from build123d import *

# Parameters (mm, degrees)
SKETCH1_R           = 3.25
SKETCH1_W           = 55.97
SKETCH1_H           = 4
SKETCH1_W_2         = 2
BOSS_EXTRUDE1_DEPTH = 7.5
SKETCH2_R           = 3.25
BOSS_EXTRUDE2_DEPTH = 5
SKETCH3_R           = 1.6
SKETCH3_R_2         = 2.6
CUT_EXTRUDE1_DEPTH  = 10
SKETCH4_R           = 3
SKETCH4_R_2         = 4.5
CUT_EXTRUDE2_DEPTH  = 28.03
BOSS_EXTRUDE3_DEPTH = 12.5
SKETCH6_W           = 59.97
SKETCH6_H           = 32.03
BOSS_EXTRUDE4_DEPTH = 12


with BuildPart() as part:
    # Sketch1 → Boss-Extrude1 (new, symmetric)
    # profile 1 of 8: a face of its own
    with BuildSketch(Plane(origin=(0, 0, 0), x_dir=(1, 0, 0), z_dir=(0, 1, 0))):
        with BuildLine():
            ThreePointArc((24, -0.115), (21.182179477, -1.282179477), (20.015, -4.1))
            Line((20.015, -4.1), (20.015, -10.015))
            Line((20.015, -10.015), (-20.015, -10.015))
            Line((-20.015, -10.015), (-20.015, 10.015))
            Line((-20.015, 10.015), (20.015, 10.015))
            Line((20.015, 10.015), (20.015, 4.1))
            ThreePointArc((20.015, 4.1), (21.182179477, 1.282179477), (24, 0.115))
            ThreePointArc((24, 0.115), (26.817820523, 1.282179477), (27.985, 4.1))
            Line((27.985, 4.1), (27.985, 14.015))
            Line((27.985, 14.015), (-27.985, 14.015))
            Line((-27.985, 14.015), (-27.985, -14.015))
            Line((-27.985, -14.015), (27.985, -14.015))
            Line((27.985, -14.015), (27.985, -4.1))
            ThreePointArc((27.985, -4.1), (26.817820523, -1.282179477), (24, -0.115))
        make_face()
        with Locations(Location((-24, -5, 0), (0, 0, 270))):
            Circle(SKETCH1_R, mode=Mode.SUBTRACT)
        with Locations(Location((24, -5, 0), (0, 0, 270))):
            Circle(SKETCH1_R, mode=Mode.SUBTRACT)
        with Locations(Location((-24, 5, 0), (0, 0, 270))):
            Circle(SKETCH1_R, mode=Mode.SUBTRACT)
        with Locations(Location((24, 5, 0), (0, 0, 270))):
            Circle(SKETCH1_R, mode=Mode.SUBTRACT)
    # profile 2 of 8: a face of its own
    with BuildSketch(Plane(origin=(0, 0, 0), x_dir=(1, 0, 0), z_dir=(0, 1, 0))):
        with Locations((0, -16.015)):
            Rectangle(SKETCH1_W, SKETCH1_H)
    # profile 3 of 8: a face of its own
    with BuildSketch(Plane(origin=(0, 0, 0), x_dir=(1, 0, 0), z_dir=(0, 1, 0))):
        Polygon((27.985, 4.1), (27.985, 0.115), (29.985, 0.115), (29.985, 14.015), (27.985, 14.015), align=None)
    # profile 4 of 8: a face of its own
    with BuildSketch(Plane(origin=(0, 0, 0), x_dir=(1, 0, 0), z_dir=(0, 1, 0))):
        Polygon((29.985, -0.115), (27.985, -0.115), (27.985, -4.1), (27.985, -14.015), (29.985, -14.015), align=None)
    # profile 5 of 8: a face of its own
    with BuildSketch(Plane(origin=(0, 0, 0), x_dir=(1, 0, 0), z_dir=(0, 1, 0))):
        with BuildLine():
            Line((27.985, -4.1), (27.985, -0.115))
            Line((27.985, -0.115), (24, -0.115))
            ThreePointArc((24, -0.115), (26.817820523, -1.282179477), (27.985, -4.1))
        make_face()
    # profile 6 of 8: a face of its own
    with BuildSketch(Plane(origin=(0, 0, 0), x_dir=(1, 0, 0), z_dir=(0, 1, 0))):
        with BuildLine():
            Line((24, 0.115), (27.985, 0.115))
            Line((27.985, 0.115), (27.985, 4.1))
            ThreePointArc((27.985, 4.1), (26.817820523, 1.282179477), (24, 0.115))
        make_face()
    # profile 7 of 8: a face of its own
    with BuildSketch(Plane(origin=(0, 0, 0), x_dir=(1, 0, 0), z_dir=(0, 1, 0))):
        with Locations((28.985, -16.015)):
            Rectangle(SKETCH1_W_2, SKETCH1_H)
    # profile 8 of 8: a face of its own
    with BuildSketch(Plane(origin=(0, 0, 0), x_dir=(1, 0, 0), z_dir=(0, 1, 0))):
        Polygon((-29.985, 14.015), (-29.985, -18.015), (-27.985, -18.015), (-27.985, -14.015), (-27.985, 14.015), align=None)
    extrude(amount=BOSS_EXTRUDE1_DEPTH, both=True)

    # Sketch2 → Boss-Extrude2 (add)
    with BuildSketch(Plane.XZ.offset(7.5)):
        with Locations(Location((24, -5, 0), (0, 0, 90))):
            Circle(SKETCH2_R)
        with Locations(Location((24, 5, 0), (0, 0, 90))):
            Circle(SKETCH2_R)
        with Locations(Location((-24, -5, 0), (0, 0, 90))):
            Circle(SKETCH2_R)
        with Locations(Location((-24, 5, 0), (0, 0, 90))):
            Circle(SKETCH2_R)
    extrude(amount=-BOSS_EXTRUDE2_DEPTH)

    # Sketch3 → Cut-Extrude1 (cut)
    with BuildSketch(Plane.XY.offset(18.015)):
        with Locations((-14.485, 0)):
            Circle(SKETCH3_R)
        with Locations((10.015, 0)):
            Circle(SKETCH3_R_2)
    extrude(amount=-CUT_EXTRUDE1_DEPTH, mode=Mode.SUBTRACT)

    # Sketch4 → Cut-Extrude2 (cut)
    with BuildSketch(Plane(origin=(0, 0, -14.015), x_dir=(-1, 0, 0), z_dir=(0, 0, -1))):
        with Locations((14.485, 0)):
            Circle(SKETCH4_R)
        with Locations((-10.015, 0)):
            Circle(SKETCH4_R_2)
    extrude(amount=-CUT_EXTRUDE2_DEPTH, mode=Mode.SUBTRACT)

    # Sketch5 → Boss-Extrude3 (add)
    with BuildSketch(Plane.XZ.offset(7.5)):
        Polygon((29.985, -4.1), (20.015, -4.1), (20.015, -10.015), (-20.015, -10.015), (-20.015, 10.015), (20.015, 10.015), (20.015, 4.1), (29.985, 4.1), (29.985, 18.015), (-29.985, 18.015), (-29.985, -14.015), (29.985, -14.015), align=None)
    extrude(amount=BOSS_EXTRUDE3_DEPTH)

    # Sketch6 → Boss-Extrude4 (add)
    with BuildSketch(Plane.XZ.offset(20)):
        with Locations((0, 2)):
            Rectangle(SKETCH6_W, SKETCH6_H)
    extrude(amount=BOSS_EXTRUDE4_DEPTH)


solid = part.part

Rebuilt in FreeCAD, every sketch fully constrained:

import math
import FreeCAD as App
import Part
import Sketcher

V = App.Vector
Q = App.Units.Quantity

doc = App.newDocument("Part")
body = doc.addObject("PartDesign::Body", "Body")

sketch1 = doc.addObject("Sketcher::SketchObject", "Sketch")
body.addObject(sketch1)
sketch1.AttachmentSupport = (doc.XZ_Plane, [""])
sketch1.MapMode = "FlatFace"
sketch1.addGeometry(Part.ArcOfCircle(Part.Circle(V(24, 4.1, 0), V(0, 0, 1), 4), math.radians(180), math.radians(270)), False)
sketch1.addGeometry(Part.LineSegment(V(20, 4.1, 0), V(20, 10, 0)), False)
sketch1.addGeometry(Part.LineSegment(V(20, 10, 0), V(-20, 10, 0)), False)
sketch1.addGeometry(Part.LineSegment(V(-20, 10, 0), V(-20, -10, 0)), False)
sketch1.addGeometry(Part.LineSegment(V(-20, -10, 0), V(20, -10, 0)), False)
sketch1.addGeometry(Part.LineSegment(V(20, -10, 0), V(20, -4.1, 0)), False)
sketch1.addGeometry(Part.ArcOfCircle(Part.Circle(V(24, -4.1, 0), V(0, 0, 1), 4), math.radians(90), math.radians(180)), False)
sketch1.addGeometry(Part.LineSegment(V(24, -0.1, 0), V(30, -0.1, 0)), False)
sketch1.addGeometry(Part.LineSegment(V(30, -0.1, 0), V(30, -14, 0)), False)
sketch1.addGeometry(Part.LineSegment(V(30, -14, 0), V(-30, -14, 0)), False)
sketch1.addGeometry(Part.LineSegment(V(-30, -14, 0), V(-30, 18, 0)), False)
sketch1.addGeometry(Part.LineSegment(V(-30, 18, 0), V(30, 18, 0)), False)
sketch1.addGeometry(Part.LineSegment(V(30, 18, 0), V(30, 0.1, 0)), False)
sketch1.addGeometry(Part.LineSegment(V(30, 0.1, 0), V(24, 0.1, 0)), False)
sketch1.addGeometry(Part.Circle(V(-24, 5, 0), V(0, 0, 1), 3.2), False)
sketch1.addGeometry(Part.Circle(V(24, 5, 0), V(0, 0, 1), 3.2), False)
sketch1.addGeometry(Part.Circle(V(-24, -5, 0), V(0, 0, 1), 3.2), False)
sketch1.addGeometry(Part.Circle(V(24, -5, 0), V(0, 0, 1), 3.2), False)
sketch1.addConstraint(Sketcher.Constraint("Tangent", 0, 1, 1, 1))
sketch1.addConstraint(Sketcher.Constraint("Coincident", 1, 2, 2, 1))
sketch1.addConstraint(Sketcher.Constraint("Coincident", 2, 2, 3, 1))
sketch1.addConstraint(Sketcher.Constraint("Coincident", 3, 2, 4, 1))
sketch1.addConstraint(Sketcher.Constraint("Coincident", 4, 2, 5, 1))
sketch1.addConstraint(Sketcher.Constraint("Tangent", 5, 2, 6, 2))
sketch1.addConstraint(Sketcher.Constraint("Tangent", 6, 1, 7, 1))
sketch1.addConstraint(Sketcher.Constraint("Coincident", 7, 2, 8, 1))
sketch1.addConstraint(Sketcher.Constraint("Coincident", 8, 2, 9, 1))
sketch1.addConstraint(Sketcher.Constraint("Coincident", 9, 2, 10, 1))
sketch1.addConstraint(Sketcher.Constraint("Coincident", 10, 2, 11, 1))
sketch1.addConstraint(Sketcher.Constraint("Coincident", 11, 2, 12, 1))
sketch1.addConstraint(Sketcher.Constraint("Coincident", 12, 2, 13, 1))
sketch1.addConstraint(Sketcher.Constraint("Tangent", 13, 2, 0, 2))
sketch1.addConstraint(Sketcher.Constraint("Vertical", 1))
sketch1.addConstraint(Sketcher.Constraint("Horizontal", 2))
sketch1.addConstraint(Sketcher.Constraint("Vertical", 3))
sketch1.addConstraint(Sketcher.Constraint("Horizontal", 4))
sketch1.addConstraint(Sketcher.Constraint("Vertical", 5))
sketch1.addConstraint(Sketcher.Constraint("Horizontal", 7))
sketch1.addConstraint(Sketcher.Constraint("Vertical", 8))
sketch1.addConstraint(Sketcher.Constraint("Horizontal", 9))
sketch1.addConstraint(Sketcher.Constraint("Vertical", 10))
sketch1.addConstraint(Sketcher.Constraint("Horizontal", 11))
sketch1.addConstraint(Sketcher.Constraint("Vertical", 12))
sketch1.addConstraint(Sketcher.Constraint("Horizontal", 13))
sketch1.addConstraint(Sketcher.Constraint("Equal", 0, 6))
sketch1.addConstraint(Sketcher.Constraint("Equal", 14, 15))
sketch1.addConstraint(Sketcher.Constraint("Equal", 15, 16))
sketch1.addConstraint(Sketcher.Constraint("Equal", 16, 17))
sketch1.addConstraint(Sketcher.Constraint("Symmetric", 15, 3, 16, 3, -1, 1))
sketch1.addConstraint(Sketcher.Constraint("Symmetric", 14, 3, 17, 3, -1, 1))
sketch1.addConstraint(Sketcher.Constraint("Symmetric", 1, 2, 3, 2, -1, 1))
sketch1.addConstraint(Sketcher.Constraint("Symmetric", 14, 3, 15, 3, -2))
sketch1.addConstraint(Sketcher.Constraint("Symmetric", 0, 3, 6, 3, -1))
sketch1.addConstraint(Sketcher.Constraint("Vertical", 6, 3, 15, 3))
sketch1.addConstraint(Sketcher.Constraint("Vertical", 8, 2, 11, 2))
sketch1.addConstraint(Sketcher.Constraint("Diameter", 14, Q("6.5 mm")))
sketch1.addConstraint(Sketcher.Constraint("DistanceY", 8, 2, 8, 1, Q("13.9 mm")))
sketch1.addConstraint(Sketcher.Constraint("DistanceY", 12, 2, 12, 1, Q("17.9 mm")))
sketch1.addConstraint(Sketcher.Constraint("DistanceX", -1, 1, 0, 3, Q("24 mm")))
sketch1.addConstraint(Sketcher.Constraint("DistanceY", -1, 1, 14, 3, Q("5 mm")))
sketch1.addConstraint(Sketcher.Constraint("Radius", 0, Q("3.985 mm")))
sketch1.addConstraint(Sketcher.Constraint("DistanceY", 8, 2, 4, 2, Q("4 mm")))
sketch1.addConstraint(Sketcher.Constraint("DistanceX", 9, 2, 4, 2, Q("50 mm")))
sketch1.addConstraint(Sketcher.Constraint("DistanceX", 9, 2, 9, 1, Q("59.97 mm")))
sketch1.addConstraint(Sketcher.Constraint("DistanceY", 3, 2, 3, 1, Q("20.03 mm")))
pad1 = doc.addObject("PartDesign::Pad", "Pad")
body.addObject(pad1)
pad1.Profile = sketch1
pad1.Length = 15
pad1.Midplane = True

sketch2 = doc.addObject("Sketcher::SketchObject", "Sketch001")
body.addObject(sketch2)
sketch2.AttachmentSupport = (doc.XZ_Plane, [""])
sketch2.MapMode = "FlatFace"
sketch2.AttachmentOffset = App.Placement(V(0, 0, 7.5), App.Rotation())
sketch2.addGeometry(Part.Circle(V(24, -5, 0), V(0, 0, 1), 3.2), False)
sketch2.addGeometry(Part.Circle(V(24, 5, 0), V(0, 0, 1), 3.2), False)
sketch2.addGeometry(Part.Circle(V(-24, -5, 0), V(0, 0, 1), 3.2), False)
sketch2.addGeometry(Part.Circle(V(-24, 5, 0), V(0, 0, 1), 3.2), False)
sketch2.addConstraint(Sketcher.Constraint("Equal", 0, 1))
sketch2.addConstraint(Sketcher.Constraint("Equal", 1, 2))
sketch2.addConstraint(Sketcher.Constraint("Equal", 2, 3))
sketch2.addConstraint(Sketcher.Constraint("Symmetric", 1, 3, 2, 3, -1, 1))
sketch2.addConstraint(Sketcher.Constraint("Symmetric", 0, 3, 3, 3, -1, 1))
sketch2.addConstraint(Sketcher.Constraint("Symmetric", 0, 3, 2, 3, -2))
sketch2.addConstraint(Sketcher.Constraint("Diameter", 0, Q("6.5 mm")))
sketch2.addConstraint(Sketcher.Constraint("DistanceX", -1, 1, 0, 3, Q("24 mm")))
sketch2.addConstraint(Sketcher.Constraint("DistanceY", 0, 3, -1, 1, Q("5 mm")))
pad2 = doc.addObject("PartDesign::Pad", "Pad001")
body.addObject(pad2)
pad2.Profile = sketch2
pad2.Length = 5
pad2.Reversed = True

sketch3 = doc.addObject("Sketcher::SketchObject", "Sketch002")
body.addObject(sketch3)
sketch3.AttachmentSupport = (doc.XY_Plane, [""])
sketch3.MapMode = "FlatFace"
sketch3.AttachmentOffset = App.Placement(V(0, 0, 18.015), App.Rotation())
sketch3.addGeometry(Part.Circle(V(-14.5, 0, 0), V(0, 0, 1), 1.6), False)
sketch3.addGeometry(Part.Circle(V(10, 0, 0), V(0, 0, 1), 2.6), False)
sketch3.addConstraint(Sketcher.Constraint("PointOnObject", 0, 3, -1))
sketch3.addConstraint(Sketcher.Constraint("PointOnObject", 1, 3, -1))
sketch3.addConstraint(Sketcher.Constraint("Diameter", 0, Q("3.2 mm")))
sketch3.addConstraint(Sketcher.Constraint("Diameter", 1, Q("5.2 mm")))
sketch3.addConstraint(Sketcher.Constraint("DistanceX", 0, 3, 1, 3, Q("24.5 mm")))
sketch3.addConstraint(Sketcher.Constraint("DistanceX", 0, 3, -1, 1, Q("14.485 mm")))
pocket1 = doc.addObject("PartDesign::Pocket", "Pocket")
body.addObject(pocket1)
pocket1.Profile = sketch3
pocket1.Length = 10

sketch4 = doc.addObject("Sketcher::SketchObject", "Sketch003")
body.addObject(sketch4)
sketch4.AttachmentSupport = (doc.XY_Plane, [""])
sketch4.MapMode = "FlatFace"
sketch4.AttachmentOffset = App.Placement(V(0, 0, -14.015), App.Rotation())
sketch4.addGeometry(Part.Circle(V(-14.5, 0, 0), V(0, 0, 1), 3), False)
sketch4.addGeometry(Part.Circle(V(10, 0, 0), V(0, 0, 1), 4.5), False)
sketch4.addConstraint(Sketcher.Constraint("PointOnObject", 0, 3, -1))
sketch4.addConstraint(Sketcher.Constraint("PointOnObject", 1, 3, -1))
sketch4.addConstraint(Sketcher.Constraint("Diameter", 0, Q("6 mm")))
sketch4.addConstraint(Sketcher.Constraint("Diameter", 1, Q("9 mm")))
sketch4.addConstraint(Sketcher.Constraint("DistanceX", 0, 3, 1, 3, Q("24.5 mm")))
sketch4.addConstraint(Sketcher.Constraint("DistanceX", 0, 3, -1, 1, Q("14.485 mm")))
pocket2 = doc.addObject("PartDesign::Pocket", "Pocket001")
body.addObject(pocket2)
pocket2.Profile = sketch4
pocket2.Length = 28.03
pocket2.Reversed = True

sketch5 = doc.addObject("Sketcher::SketchObject", "Sketch004")
body.addObject(sketch5)
sketch5.AttachmentSupport = (doc.XZ_Plane, [""])
sketch5.MapMode = "FlatFace"
sketch5.AttachmentOffset = App.Placement(V(0, 0, 7.5), App.Rotation())
sketch5.addGeometry(Part.LineSegment(V(30, -4, 0), V(20, -4, 0)), False)
sketch5.addGeometry(Part.LineSegment(V(20, -4, 0), V(20, -10, 0)), False)
sketch5.addGeometry(Part.LineSegment(V(20, -10, 0), V(-20, -10, 0)), False)
sketch5.addGeometry(Part.LineSegment(V(-20, -10, 0), V(-20, 10, 0)), False)
sketch5.addGeometry(Part.LineSegment(V(-20, 10, 0), V(20, 10, 0)), False)
sketch5.addGeometry(Part.LineSegment(V(20, 10, 0), V(20, 4, 0)), False)
sketch5.addGeometry(Part.LineSegment(V(20, 4, 0), V(30, 4, 0)), False)
sketch5.addGeometry(Part.LineSegment(V(30, 4, 0), V(30, 18, 0)), False)
sketch5.addGeometry(Part.LineSegment(V(30, 18, 0), V(-30, 18, 0)), False)
sketch5.addGeometry(Part.LineSegment(V(-30, 18, 0), V(-30, -14, 0)), False)
sketch5.addGeometry(Part.LineSegment(V(-30, -14, 0), V(30, -14, 0)), False)
sketch5.addGeometry(Part.LineSegment(V(30, -14, 0), V(30, -4, 0)), False)
sketch5.addConstraint(Sketcher.Constraint("Coincident", 0, 2, 1, 1))
sketch5.addConstraint(Sketcher.Constraint("Coincident", 1, 2, 2, 1))
sketch5.addConstraint(Sketcher.Constraint("Coincident", 2, 2, 3, 1))
sketch5.addConstraint(Sketcher.Constraint("Coincident", 3, 2, 4, 1))
sketch5.addConstraint(Sketcher.Constraint("Coincident", 4, 2, 5, 1))
sketch5.addConstraint(Sketcher.Constraint("Coincident", 5, 2, 6, 1))
sketch5.addConstraint(Sketcher.Constraint("Coincident", 6, 2, 7, 1))
sketch5.addConstraint(Sketcher.Constraint("Coincident", 7, 2, 8, 1))
sketch5.addConstraint(Sketcher.Constraint("Coincident", 8, 2, 9, 1))
sketch5.addConstraint(Sketcher.Constraint("Coincident", 9, 2, 10, 1))
sketch5.addConstraint(Sketcher.Constraint("Coincident", 10, 2, 11, 1))
sketch5.addConstraint(Sketcher.Constraint("Coincident", 11, 2, 0, 1))
sketch5.addConstraint(Sketcher.Constraint("Horizontal", 0))
sketch5.addConstraint(Sketcher.Constraint("Vertical", 1))
sketch5.addConstraint(Sketcher.Constraint("Horizontal", 2))
sketch5.addConstraint(Sketcher.Constraint("Vertical", 3))
sketch5.addConstraint(Sketcher.Constraint("Horizontal", 4))
sketch5.addConstraint(Sketcher.Constraint("Vertical", 5))
sketch5.addConstraint(Sketcher.Constraint("Horizontal", 6))
sketch5.addConstraint(Sketcher.Constraint("Vertical", 7))
sketch5.addConstraint(Sketcher.Constraint("Horizontal", 8))
sketch5.addConstraint(Sketcher.Constraint("Vertical", 9))
sketch5.addConstraint(Sketcher.Constraint("Horizontal", 10))
sketch5.addConstraint(Sketcher.Constraint("Vertical", 11))
sketch5.addConstraint(Sketcher.Constraint("Symmetric", 1, 2, 3, 2, -1, 1))
sketch5.addConstraint(Sketcher.Constraint("Symmetric", 0, 2, 5, 2, -1))
sketch5.addConstraint(Sketcher.Constraint("Vertical", 7, 2, 10, 2))
sketch5.addConstraint(Sketcher.Constraint("DistanceX", 3, 2, 6, 2, Q("50 mm")))
sketch5.addConstraint(Sketcher.Constraint("DistanceY", 4, 2, 7, 2, Q("8 mm")))
sketch5.addConstraint(Sketcher.Constraint("DistanceX", 8, 2, 4, 2, Q("50 mm")))
sketch5.addConstraint(Sketcher.Constraint("DistanceY", 9, 2, 2, 2, Q("4 mm")))
sketch5.addConstraint(Sketcher.Constraint("DistanceX", 0, 2, 0, 1, Q("9.97 mm")))
sketch5.addConstraint(Sketcher.Constraint("DistanceY", 3, 1, 3, 2, Q("20.03 mm")))
sketch5.addConstraint(Sketcher.Constraint("DistanceY", 0, 2, -1, 1, Q("4.1 mm")))
pad3 = doc.addObject("PartDesign::Pad", "Pad002")
body.addObject(pad3)
pad3.Profile = sketch5
pad3.Length = 12.5

sketch6 = doc.addObject("Sketcher::SketchObject", "Sketch005")
body.addObject(sketch6)
sketch6.AttachmentSupport = (doc.XZ_Plane, [""])
sketch6.MapMode = "FlatFace"
sketch6.AttachmentOffset = App.Placement(V(0, 0, 20), App.Rotation())
sketch6.addGeometry(Part.LineSegment(V(-30, 18, 0), V(-30, -14, 0)), False)
sketch6.addGeometry(Part.LineSegment(V(-30, -14, 0), V(30, -14, 0)), False)
sketch6.addGeometry(Part.LineSegment(V(30, -14, 0), V(30, 18, 0)), False)
sketch6.addGeometry(Part.LineSegment(V(30, 18, 0), V(-30, 18, 0)), False)
sketch6.addConstraint(Sketcher.Constraint("Coincident", 0, 2, 1, 1))
sketch6.addConstraint(Sketcher.Constraint("Coincident", 1, 2, 2, 1))
sketch6.addConstraint(Sketcher.Constraint("Coincident", 2, 2, 3, 1))
sketch6.addConstraint(Sketcher.Constraint("Coincident", 3, 2, 0, 1))
sketch6.addConstraint(Sketcher.Constraint("Vertical", 0))
sketch6.addConstraint(Sketcher.Constraint("Horizontal", 1))
sketch6.addConstraint(Sketcher.Constraint("Vertical", 2))
sketch6.addConstraint(Sketcher.Constraint("Horizontal", 3))
sketch6.addConstraint(Sketcher.Constraint("DistanceX", 1, 1, 1, 2, Q("59.97 mm")))
sketch6.addConstraint(Sketcher.Constraint("DistanceY", 0, 2, 0, 1, Q("32.03 mm")))
sketch6.addConstraint(Sketcher.Constraint("DistanceX", 0, 2, -1, 1, Q("29.985 mm")))
sketch6.addConstraint(Sketcher.Constraint("DistanceY", 0, 2, -1, 1, Q("14.015 mm")))
pad4 = doc.addObject("PartDesign::Pad", "Pad003")
body.addObject(pad4)
pad4.Profile = sketch6
pad4.Length = 12

doc.recompute()
